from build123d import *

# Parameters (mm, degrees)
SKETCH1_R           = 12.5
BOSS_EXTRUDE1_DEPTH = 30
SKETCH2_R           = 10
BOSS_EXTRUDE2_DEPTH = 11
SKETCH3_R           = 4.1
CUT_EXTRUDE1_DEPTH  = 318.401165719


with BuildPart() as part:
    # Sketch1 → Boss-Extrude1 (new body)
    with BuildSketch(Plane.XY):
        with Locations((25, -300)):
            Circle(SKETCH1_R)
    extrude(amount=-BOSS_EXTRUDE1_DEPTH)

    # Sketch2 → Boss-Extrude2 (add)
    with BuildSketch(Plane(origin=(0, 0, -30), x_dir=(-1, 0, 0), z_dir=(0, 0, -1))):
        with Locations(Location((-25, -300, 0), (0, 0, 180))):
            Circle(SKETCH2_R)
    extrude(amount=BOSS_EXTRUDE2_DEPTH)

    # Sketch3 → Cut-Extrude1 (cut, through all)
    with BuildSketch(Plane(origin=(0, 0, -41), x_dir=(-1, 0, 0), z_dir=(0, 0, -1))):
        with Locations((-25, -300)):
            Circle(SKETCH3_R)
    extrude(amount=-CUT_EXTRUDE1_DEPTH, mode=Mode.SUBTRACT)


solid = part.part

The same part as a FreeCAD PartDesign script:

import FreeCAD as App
import Part
import Sketcher

V = App.Vector

doc = App.newDocument("Part")
body = doc.addObject("PartDesign::Body", "Body")

sketch1 = doc.addObject("Sketcher::SketchObject", "Sketch")
body.addObject(sketch1)
sketch1.AttachmentSupport = (doc.XY_Plane, [""])
sketch1.MapMode = "FlatFace"
sketch1.addGeometry(Part.Circle(V(25, -300, 0), V(0, 0, 1), 12.5), False)
sketch1.addConstraint([
    Sketcher.Constraint("Diameter", 0, 25.0),
    Sketcher.Constraint("DistanceX", -1, 1, 0, 3, 25.0),
    Sketcher.Constraint("DistanceY", 0, 3, -1, 1, 300.0),
])
pad1 = doc.addObject("PartDesign::Pad", "Pad")
body.addObject(pad1)
pad1.Profile = sketch1
pad1.Length = 30
pad1.Reversed = True

sketch2 = doc.addObject("Sketcher::SketchObject", "Sketch001")
body.addObject(sketch2)
sketch2.AttachmentSupport = (doc.XY_Plane, [""])
sketch2.MapMode = "FlatFace"
sketch2.AttachmentOffset = App.Placement(V(0, 0, -30), App.Rotation())
sketch2.addGeometry(Part.Circle(V(25, -300, 0), V(0, 0, 1), 10), False)
sketch2.addConstraint([
    Sketcher.Constraint("Diameter", 0, 20.0),
    Sketcher.Constraint("DistanceX", -1, 1, 0, 3, 25.0),
    Sketcher.Constraint("DistanceY", 0, 3, -1, 1, 300.0),
])
pad2 = doc.addObject("PartDesign::Pad", "Pad001")
body.addObject(pad2)
pad2.Profile = sketch2
pad2.Length = 11
pad2.Reversed = True

sketch3 = doc.addObject("Sketcher::SketchObject", "Sketch002")
body.addObject(sketch3)
sketch3.AttachmentSupport = (doc.XY_Plane, [""])
sketch3.MapMode = "FlatFace"
sketch3.AttachmentOffset = App.Placement(V(0, 0, -41), App.Rotation())
sketch3.addGeometry(Part.Circle(V(25, -300, 0), V(0, 0, 1), 4.1), False)
sketch3.addConstraint([
    Sketcher.Constraint("Diameter", 0, 8.2),
    Sketcher.Constraint("DistanceX", -1, 1, 0, 3, 25.0),
    Sketcher.Constraint("DistanceY", 0, 3, -1, 1, 300.0),
])
pocket1 = doc.addObject("PartDesign::Pocket", "Pocket")
body.addObject(pocket1)
pocket1.Profile = sketch3
pocket1.Type = "ThroughAll"
pocket1.Reversed = True

doc.recompute()
